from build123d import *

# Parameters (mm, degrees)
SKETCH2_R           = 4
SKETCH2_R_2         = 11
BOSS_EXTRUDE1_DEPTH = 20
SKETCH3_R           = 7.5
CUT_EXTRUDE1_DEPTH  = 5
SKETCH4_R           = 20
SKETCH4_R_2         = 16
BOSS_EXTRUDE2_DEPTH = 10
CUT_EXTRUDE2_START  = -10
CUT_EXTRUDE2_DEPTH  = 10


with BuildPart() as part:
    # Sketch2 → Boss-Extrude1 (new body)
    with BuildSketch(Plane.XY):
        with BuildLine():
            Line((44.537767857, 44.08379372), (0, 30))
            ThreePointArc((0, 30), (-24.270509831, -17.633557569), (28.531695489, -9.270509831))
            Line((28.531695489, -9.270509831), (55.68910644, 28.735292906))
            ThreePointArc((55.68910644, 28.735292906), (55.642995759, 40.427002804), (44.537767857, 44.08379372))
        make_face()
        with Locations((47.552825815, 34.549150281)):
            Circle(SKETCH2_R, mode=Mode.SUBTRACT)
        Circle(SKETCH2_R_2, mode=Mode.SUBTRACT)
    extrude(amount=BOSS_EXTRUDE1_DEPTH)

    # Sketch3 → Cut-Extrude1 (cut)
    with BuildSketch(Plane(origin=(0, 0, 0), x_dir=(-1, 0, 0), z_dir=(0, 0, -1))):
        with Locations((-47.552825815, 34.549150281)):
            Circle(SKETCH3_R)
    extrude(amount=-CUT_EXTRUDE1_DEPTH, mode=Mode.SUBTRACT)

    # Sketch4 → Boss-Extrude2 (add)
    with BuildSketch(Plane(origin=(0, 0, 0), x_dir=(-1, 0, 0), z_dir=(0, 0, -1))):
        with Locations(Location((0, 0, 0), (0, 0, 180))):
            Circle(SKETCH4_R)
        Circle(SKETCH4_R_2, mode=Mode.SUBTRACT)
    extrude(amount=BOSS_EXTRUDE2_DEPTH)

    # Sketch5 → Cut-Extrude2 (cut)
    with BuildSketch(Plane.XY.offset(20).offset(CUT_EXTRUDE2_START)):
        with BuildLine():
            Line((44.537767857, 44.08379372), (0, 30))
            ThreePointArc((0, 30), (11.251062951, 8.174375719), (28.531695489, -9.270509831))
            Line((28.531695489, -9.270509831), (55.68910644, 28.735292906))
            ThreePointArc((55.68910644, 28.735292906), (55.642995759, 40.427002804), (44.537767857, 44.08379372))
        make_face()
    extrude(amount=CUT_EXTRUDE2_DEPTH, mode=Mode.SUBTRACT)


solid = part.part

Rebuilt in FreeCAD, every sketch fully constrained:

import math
import FreeCAD as App
import Part
import Sketcher
Q = App.Units.Quantity

doc = App.newDocument("Part")
body = doc.addObject("PartDesign::Body", "Body")

# Sketch on XY plane
sketch1 = body.newObject("Sketcher::SketchObject", "Sketch")
sketch1.AttachmentSupport = (doc.getObject("XY_Plane"), [""])
sketch1.MapMode = "FlatFace"
sketch1.addGeometry(Part.LineSegment(App.Vector(44.5, 44.1, 0), App.Vector(0, 30, 0)), False)
sketch1.addGeometry(Part.ArcOfCircle(Part.Circle(App.Vector(0, 0, 0), App.Vector(0, 0, 1), 30), math.radians(90), math.radians(342)), False)
sketch1.addGeometry(Part.LineSegment(App.Vector(28.5, -9.3, 0), App.Vector(55.7, 28.7, 0)), False)
sketch1.addGeometry(Part.ArcOfCircle(Part.Circle(App.Vector(47.6, 34.5, 0), App.Vector(0, 0, 1), 10), math.radians(-36), math.radians(108)), False)
sketch1.addGeometry(Part.Circle(App.Vector(0, 0, 0), App.Vector(0, 0, 1), 11), False)
sketch1.addGeometry(Part.Circle(App.Vector(47.6, 34.5, 0), App.Vector(0, 0, 1), 4), False)
sketch1.addConstraint(Sketcher.Constraint("Coincident", 0, 2, 1, 1))
sketch1.addConstraint(Sketcher.Constraint("Coincident", 1, 2, 2, 1))
sketch1.addConstraint(Sketcher.Constraint("Tangent", 2, 2, 3, 1))
sketch1.addConstraint(Sketcher.Constraint("Tangent", 3, 2, 0, 1))
sketch1.addConstraint(Sketcher.Constraint("Coincident", 1, 3, -1, 1))
sketch1.addConstraint(Sketcher.Constraint("Coincident", 4, 3, -1, 1))
sketch1.addConstraint(Sketcher.Constraint("Coincident", 5, 3, 3, 3))
sketch1.addConstraint(Sketcher.Constraint("PointOnObject", 0, 2, -2))
sketch1.addConstraint(Sketcher.Constraint("Equal", 0, 2))
sketch1.addConstraint(Sketcher.Constraint("Diameter", 4, Q("22 mm")))
sketch1.addConstraint(Sketcher.Constraint("Diameter", 5, Q("8 mm")))
sketch1.addConstraint(Sketcher.Constraint("Radius", 1, Q("30 mm")))
sketch1.addConstraint(Sketcher.Constraint("Radius", 3, Q("10 mm")))
sketch1.addConstraint(Sketcher.Constraint("DistanceY", 2, 2, 3, 2, Q("15.348501 mm")))
sketch1.addConstraint(Sketcher.Constraint("Distance", 0, Q("46.711519 mm")))
pad1 = body.newObject("PartDesign::Pad", "Pad")
pad1.Profile = sketch1
pad1.Length = 20

# Sketch on XY plane
sketch2 = body.newObject("Sketcher::SketchObject", "Sketch001")
sketch2.AttachmentSupport = (doc.getObject("XY_Plane"), [""])
sketch2.MapMode = "FlatFace"
sketch2.addGeometry(Part.Circle(App.Vector(48, 35, 0), App.Vector(0, 0, 1), 8), False)
sketch2.addConstraint(Sketcher.Constraint("Diameter", 0, Q("15 mm")))
sketch2.addConstraint(Sketcher.Constraint("DistanceY", -1, 1, 0, 3, Q("34.54915 mm")))
sketch2.addConstraint(Sketcher.Constraint("DistanceX", -1, 1, 0, 3, Q("47.552826 mm")))
pocket1 = body.newObject("PartDesign::Pocket", "Pocket")
pocket1.Profile = sketch2
pocket1.Length = 5
pocket1.Reversed = True

# Sketch on XY plane
sketch3 = body.newObject("Sketcher::SketchObject", "Sketch002")
sketch3.AttachmentSupport = (doc.getObject("XY_Plane"), [""])
sketch3.MapMode = "FlatFace"
sketch3.addGeometry(Part.Circle(App.Vector(0, 0, 0), App.Vector(0, 0, 1), 20), False)
sketch3.addGeometry(Part.Circle(App.Vector(0, 0, 0), App.Vector(0, 0, 1), 16), False)
sketch3.addConstraint(Sketcher.Constraint("Coincident", 0, 3, -1, 1))
sketch3.addConstraint(Sketcher.Constraint("Coincident", 1, 3, -1, 1))
sketch3.addConstraint(Sketcher.Constraint("Diameter", 0, Q("40 mm")))
sketch3.addConstraint(Sketcher.Constraint("Diameter", 1, Q("32 mm")))
pad2 = body.newObject("PartDesign::Pad", "Pad001")
pad2.Profile = sketch3
pad2.Length = 10
pad2.Reversed = True

# Sketch on XY plane
sketch4 = body.newObject("Sketcher::SketchObject", "Sketch003")
sketch4.AttachmentSupport = (doc.getObject("XY_Plane"), [""])
sketch4.MapMode = "FlatFace"
sketch4.AttachmentOffset = App.Placement(App.Vector(0, 0, 10), App.Rotation())
sketch4.addGeometry(Part.LineSegment(App.Vector(45, 44, 0), App.Vector(0, 30, 0)), False)
sketch4.addGeometry(Part.ArcOfCircle(Part.Circle(App.Vector(77, 56, 0), App.Vector(0, 0, 1), 81), math.radians(-161), math.radians(-127)), False)
sketch4.addGeometry(Part.LineSegment(App.Vector(29, -9, 0), App.Vector(56, 29, 0)), False)
sketch4.addGeometry(Part.ArcOfCircle(Part.Circle(App.Vector(48, 35, 0), App.Vector(0, 0, 1), 10), math.radians(-36), math.radians(108)), False)
sketch4.addConstraint(Sketcher.Constraint("Coincident", 0, 2, 1, 1))
sketch4.addConstraint(Sketcher.Constraint("Coincident", 1, 2, 2, 1))
sketch4.addConstraint(Sketcher.Constraint("Tangent", 2, 2, 3, 1))
sketch4.addConstraint(Sketcher.Constraint("Tangent", 3, 2, 0, 1))
sketch4.addConstraint(Sketcher.Constraint("PointOnObject", 0, 2, -2))
sketch4.addConstraint(Sketcher.Constraint("Equal", 0, 2))
sketch4.addConstraint(Sketcher.Constraint("Radius", 3, Q("10 mm")))
sketch4.addConstraint(Sketcher.Constraint("Radius", 1, Q("80.9 mm")))
sketch4.addConstraint(Sketcher.Constraint("DistanceY", -1, 1, 0, 2, Q("30 mm")))
sketch4.addConstraint(Sketcher.Constraint("DistanceY", 2, 2, 3, 2, Q("15.348501 mm")))
sketch4.addConstraint(Sketcher.Constraint("Distance", 0, Q("46.711519 mm")))
sketch4.addConstraint(Sketcher.Constraint("DistanceY", -1, 1, 3, 3, Q("34.54915 mm")))
pocket2 = body.newObject("PartDesign::Pocket", "Pocket001")
pocket2.Profile = sketch4
pocket2.Length = 10
pocket2.Reversed = True

doc.recompute()
